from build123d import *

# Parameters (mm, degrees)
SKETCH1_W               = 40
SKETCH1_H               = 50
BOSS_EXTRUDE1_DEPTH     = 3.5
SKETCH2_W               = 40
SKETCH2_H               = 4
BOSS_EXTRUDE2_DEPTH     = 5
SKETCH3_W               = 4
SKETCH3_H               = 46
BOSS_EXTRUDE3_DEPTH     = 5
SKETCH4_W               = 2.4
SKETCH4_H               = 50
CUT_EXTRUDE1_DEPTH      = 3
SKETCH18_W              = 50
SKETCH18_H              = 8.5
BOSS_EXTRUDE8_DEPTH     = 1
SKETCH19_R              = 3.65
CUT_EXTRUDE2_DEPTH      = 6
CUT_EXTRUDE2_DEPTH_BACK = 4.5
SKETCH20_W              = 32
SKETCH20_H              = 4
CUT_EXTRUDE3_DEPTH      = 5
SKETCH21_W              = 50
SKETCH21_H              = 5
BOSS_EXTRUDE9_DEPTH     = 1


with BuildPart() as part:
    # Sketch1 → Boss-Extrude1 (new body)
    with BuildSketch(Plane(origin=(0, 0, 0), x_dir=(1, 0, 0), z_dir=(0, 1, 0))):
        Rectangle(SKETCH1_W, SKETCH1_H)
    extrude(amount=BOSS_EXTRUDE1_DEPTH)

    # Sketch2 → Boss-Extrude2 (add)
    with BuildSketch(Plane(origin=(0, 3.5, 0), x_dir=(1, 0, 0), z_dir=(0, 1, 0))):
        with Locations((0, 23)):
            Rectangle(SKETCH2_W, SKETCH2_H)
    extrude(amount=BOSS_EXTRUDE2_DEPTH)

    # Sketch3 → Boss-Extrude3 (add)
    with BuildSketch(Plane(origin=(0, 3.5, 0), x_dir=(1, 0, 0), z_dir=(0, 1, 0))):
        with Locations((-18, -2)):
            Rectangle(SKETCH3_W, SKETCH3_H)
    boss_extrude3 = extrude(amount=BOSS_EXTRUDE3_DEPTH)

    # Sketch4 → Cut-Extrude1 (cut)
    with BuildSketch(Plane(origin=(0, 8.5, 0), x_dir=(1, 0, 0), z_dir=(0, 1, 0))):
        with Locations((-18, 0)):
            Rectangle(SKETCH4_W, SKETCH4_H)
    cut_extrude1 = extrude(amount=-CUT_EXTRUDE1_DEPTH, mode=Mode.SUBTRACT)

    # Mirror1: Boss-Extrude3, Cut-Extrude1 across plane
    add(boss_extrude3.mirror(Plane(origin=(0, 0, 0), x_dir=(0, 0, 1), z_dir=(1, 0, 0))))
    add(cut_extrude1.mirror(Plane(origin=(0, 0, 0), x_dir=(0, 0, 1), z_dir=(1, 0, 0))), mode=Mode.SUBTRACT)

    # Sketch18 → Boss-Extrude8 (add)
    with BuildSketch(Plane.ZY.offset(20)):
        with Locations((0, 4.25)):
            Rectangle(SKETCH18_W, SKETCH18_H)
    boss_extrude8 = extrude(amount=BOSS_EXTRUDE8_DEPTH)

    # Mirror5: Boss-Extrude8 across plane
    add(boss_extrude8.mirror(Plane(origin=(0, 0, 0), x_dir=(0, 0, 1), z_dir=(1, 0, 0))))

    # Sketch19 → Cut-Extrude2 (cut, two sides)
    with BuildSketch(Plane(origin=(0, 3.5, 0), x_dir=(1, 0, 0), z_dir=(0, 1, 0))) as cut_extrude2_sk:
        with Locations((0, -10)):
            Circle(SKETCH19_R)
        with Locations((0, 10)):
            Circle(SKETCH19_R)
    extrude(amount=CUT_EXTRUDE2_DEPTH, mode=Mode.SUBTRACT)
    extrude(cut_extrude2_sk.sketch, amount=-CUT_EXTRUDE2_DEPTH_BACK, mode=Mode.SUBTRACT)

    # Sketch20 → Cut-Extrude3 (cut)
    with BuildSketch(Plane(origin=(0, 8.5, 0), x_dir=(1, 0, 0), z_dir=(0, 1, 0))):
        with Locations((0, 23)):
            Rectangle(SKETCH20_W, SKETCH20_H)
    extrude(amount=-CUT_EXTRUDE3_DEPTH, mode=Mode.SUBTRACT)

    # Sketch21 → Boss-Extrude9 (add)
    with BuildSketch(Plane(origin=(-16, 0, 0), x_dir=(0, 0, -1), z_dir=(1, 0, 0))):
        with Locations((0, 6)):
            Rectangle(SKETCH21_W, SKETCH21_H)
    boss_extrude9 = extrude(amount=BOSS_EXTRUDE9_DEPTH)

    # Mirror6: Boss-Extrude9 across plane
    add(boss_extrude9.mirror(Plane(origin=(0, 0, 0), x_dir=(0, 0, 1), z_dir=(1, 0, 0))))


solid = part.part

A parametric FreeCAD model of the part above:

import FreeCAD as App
import Part
import Sketcher

V = App.Vector
Q = App.Units.Quantity


def add_polygon(sketch, points):
    """Adds a closed chain of lines whose ends are joined by coincident constraints."""
    first, n = sketch.GeometryCount, len(points)
    for a, b in zip(points, points[1:] + points[:1]):
        sketch.addGeometry(Part.LineSegment(App.Vector(*a, 0), App.Vector(*b, 0)), False)
    for i in range(n):
        sketch.addConstraint(Sketcher.Constraint("Coincident", first + i, 2, first + (i + 1) % n, 1))

doc = App.newDocument("Part")
body = doc.addObject("PartDesign::Body", "Body")

sketch1 = doc.addObject("Sketcher::SketchObject", "Sketch")
body.addObject(sketch1)
sketch1.AttachmentSupport = (doc.XZ_Plane, [""])
sketch1.MapMode = "FlatFace"
add_polygon(sketch1, [(-20, -25), (-20, 25), (20, 25), (20, -25)])
sketch1.addConstraint([
    Sketcher.Constraint("Vertical", 0),
    Sketcher.Constraint("Horizontal", 1),
    Sketcher.Constraint("Vertical", 2),
    Sketcher.Constraint("Horizontal", 3),
    Sketcher.Constraint("Symmetric", 0, 2, 2, 2, -1, 1),
    Sketcher.Constraint("DistanceX", 1, 1, 1, 2, Q("40 mm")),
    Sketcher.Constraint("DistanceY", 0, 1, 0, 2, Q("50 mm")),
])
pad1 = doc.addObject("PartDesign::Pad", "Pad")
body.addObject(pad1)
pad1.Profile = sketch1
pad1.Length = 3.5
pad1.Reversed = True

sketch2 = doc.addObject("Sketcher::SketchObject", "Sketch001")
body.addObject(sketch2)
sketch2.AttachmentSupport = (doc.XZ_Plane, [""])
sketch2.MapMode = "FlatFace"
sketch2.AttachmentOffset = App.Placement(V(0, 0, -3.5), App.Rotation())
add_polygon(sketch2, [(-20, -25), (-20, -21), (20, -21), (20, -25)])
sketch2.addConstraint([
    Sketcher.Constraint("Vertical", 0),
    Sketcher.Constraint("Horizontal", 1),
    Sketcher.Constraint("Vertical", 2),
    Sketcher.Constraint("Horizontal", 3),
    Sketcher.Constraint("DistanceX", 1, 1, 1, 2, Q("40 mm")),
    Sketcher.Constraint("DistanceY", 0, 1, 0, 2, Q("4 mm")),
    Sketcher.Constraint("DistanceX", 0, 2, -1, 1, Q("20 mm")),
    Sketcher.Constraint("DistanceY", 0, 2, -1, 1, Q("21 mm")),
])
pad2 = doc.addObject("PartDesign::Pad", "Pad001")
body.addObject(pad2)
pad2.Profile = sketch2
pad2.Length = 5
pad2.Reversed = True

sketch3 = doc.addObject("Sketcher::SketchObject", "Sketch002")
body.addObject(sketch3)
sketch3.AttachmentSupport = (doc.XZ_Plane, [""])
sketch3.MapMode = "FlatFace"
sketch3.AttachmentOffset = App.Placement(V(0, 0, -3.5), App.Rotation())
add_polygon(sketch3, [(-20, -21), (-20, 25), (-16, 25), (-16, -21)])
sketch3.addConstraint([
    Sketcher.Constraint("Vertical", 0),
    Sketcher.Constraint("Horizontal", 1),
    Sketcher.Constraint("Vertical", 2),
    Sketcher.Constraint("Horizontal", 3),
    Sketcher.Constraint("DistanceX", 1, 1, 1, 2, Q("4 mm")),
    Sketcher.Constraint("DistanceY", 0, 1, 0, 2, Q("46 mm")),
    Sketcher.Constraint("DistanceX", 0, 2, -1, 1, Q("20 mm")),
    Sketcher.Constraint("DistanceY", -1, 1, 0, 2, Q("25 mm")),
])
pad3 = doc.addObject("PartDesign::Pad", "Pad002")
body.addObject(pad3)
pad3.Profile = sketch3
pad3.Length = 5
pad3.Reversed = True

sketch4 = doc.addObject("Sketcher::SketchObject", "Sketch003")
body.addObject(sketch4)
sketch4.AttachmentSupport = (doc.XZ_Plane, [""])
sketch4.MapMode = "FlatFace"
sketch4.AttachmentOffset = App.Placement(V(0, 0, -8.5), App.Rotation())
add_polygon(sketch4, [(-19.2, -25), (-19.2, 25), (-16.8, 25), (-16.8, -25)])
sketch4.addConstraint([
    Sketcher.Constraint("Vertical", 0),
    Sketcher.Constraint("Horizontal", 1),
    Sketcher.Constraint("Vertical", 2),
    Sketcher.Constraint("Horizontal", 3),
    Sketcher.Constraint("DistanceY", 0, 1, 0, 2, Q("50 mm")),
    Sketcher.Constraint("DistanceX", 1, 1, 1, 2, Q("2.4 mm")),
    Sketcher.Constraint("DistanceY", -1, 1, 0, 2, Q("25 mm")),
    Sketcher.Constraint("DistanceX", 0, 2, -1, 1, Q("19.2 mm")),
])
pocket1 = doc.addObject("PartDesign::Pocket", "Pocket")
body.addObject(pocket1)
pocket1.Profile = sketch4
pocket1.Length = 3
pocket1.Reversed = True
doc.recompute()

mirrored = doc.addObject("PartDesign::Mirrored", "Mirrored")
body.addObject(mirrored)
mirrored.Originals = [pad3, pocket1]
mirrored.MirrorPlane = (doc.YZ_Plane, [""])
body.Tip = mirrored

sketch5 = doc.addObject("Sketcher::SketchObject", "Sketch004")
body.addObject(sketch5)
sketch5.AttachmentSupport = (doc.YZ_Plane, [""])
sketch5.MapMode = "FlatFace"
sketch5.AttachmentOffset = App.Placement(V(0, 0, -20), App.Rotation())
add_polygon(sketch5, [(8.5, -25), (0, -25), (0, 25), (8.5, 25)])
sketch5.addConstraint([
    Sketcher.Constraint("Horizontal", 0),
    Sketcher.Constraint("Vertical", 1),
    Sketcher.Constraint("Horizontal", 2),
    Sketcher.Constraint("Vertical", 3),
    Sketcher.Constraint("Symmetric", 0, 2, 1, 2, -1, 1),
    Sketcher.Constraint("DistanceY", 1, 1, 1, 2, Q("50 mm")),
    Sketcher.Constraint("DistanceX", 0, 2, 0, 1, Q("8.5 mm")),
])
pad4 = doc.addObject("PartDesign::Pad", "Pad003")
body.addObject(pad4)
pad4.Profile = sketch5
pad4.Length = 1
pad4.Reversed = True
doc.recompute()

mirrored2 = doc.addObject("PartDesign::Mirrored", "Mirrored001")
body.addObject(mirrored2)
mirrored2.Originals = [pad4]
mirrored2.MirrorPlane = (doc.YZ_Plane, [""])
body.Tip = mirrored2

sketch6 = doc.addObject("Sketcher::SketchObject", "Sketch005")
body.addObject(sketch6)
sketch6.AttachmentSupport = (doc.XZ_Plane, [""])
sketch6.MapMode = "FlatFace"
sketch6.AttachmentOffset = App.Placement(V(0, 0, -3.5), App.Rotation())
sketch6.addGeometry([
    Part.Circle(V(0, 10, 0), V(0, 0, 1), 3.65),
    Part.Circle(V(0, -10, 0), V(0, 0, 1), 3.65),
], False)
sketch6.addConstraint([
    Sketcher.Constraint("Equal", 0, 1),
    Sketcher.Constraint("Symmetric", 0, 3, 1, 3, -1, 1),
    Sketcher.Constraint("PointOnObject", 0, 3, -2),
    Sketcher.Constraint("Diameter", 0, Q("7.3 mm")),
    Sketcher.Constraint("DistanceY", -1, 1, 0, 3, Q("10 mm")),
])
pocket2 = doc.addObject("PartDesign::Pocket", "Pocket001")
body.addObject(pocket2)
pocket2.Profile = sketch6
pocket2.Type = "ThroughAll"
pocket2.Midplane = True

sketch7 = doc.addObject("Sketcher::SketchObject", "Sketch006")
body.addObject(sketch7)
sketch7.AttachmentSupport = (doc.XZ_Plane, [""])
sketch7.MapMode = "FlatFace"
sketch7.AttachmentOffset = App.Placement(V(0, 0, -8.5), App.Rotation())
add_polygon(sketch7, [(-16, -25), (-16, -21), (16, -21), (16, -25)])
sketch7.addConstraint([
    Sketcher.Constraint("Vertical", 0),
    Sketcher.Constraint("Horizontal", 1),
    Sketcher.Constraint("Vertical", 2),
    Sketcher.Constraint("Horizontal", 3),
    Sketcher.Constraint("DistanceX", 1, 1, 1, 2, Q("32 mm")),
    Sketcher.Constraint("DistanceY", 0, 1, 0, 2, Q("4 mm")),
    Sketcher.Constraint("DistanceX", 0, 2, -1, 1, Q("16 mm")),
    Sketcher.Constraint("DistanceY", 0, 2, -1, 1, Q("21 mm")),
])
pocket3 = doc.addObject("PartDesign::Pocket", "Pocket002")
body.addObject(pocket3)
pocket3.Profile = sketch7
pocket3.Length = 5
pocket3.Reversed = True

sketch8 = doc.addObject("Sketcher::SketchObject", "Sketch007")
body.addObject(sketch8)
sketch8.AttachmentSupport = (doc.YZ_Plane, [""])
sketch8.MapMode = "FlatFace"
sketch8.AttachmentOffset = App.Placement(V(0, 0, -16), App.Rotation())
add_polygon(sketch8, [(8.5, 25), (3.5, 25), (3.5, -25), (8.5, -25)])
sketch8.addConstraint([
    Sketcher.Constraint("Horizontal", 0),
    Sketcher.Constraint("Vertical", 1),
    Sketcher.Constraint("Horizontal", 2),
    Sketcher.Constraint("Vertical", 3),
    Sketcher.Constraint("DistanceX", 0, 2, 0, 1, Q("5 mm")),
    Sketcher.Constraint("DistanceY", 1, 2, 1, 1, Q("50 mm")),
    Sketcher.Constraint("DistanceY", -1, 1, 0, 2, Q("25 mm")),
    Sketcher.Constraint("DistanceX", -1, 1, 0, 2, Q("3.5 mm")),
])
pad5 = doc.addObject("PartDesign::Pad", "Pad004")
body.addObject(pad5)
pad5.Profile = sketch8
pad5.Length = 1
doc.recompute()

mirrored3 = doc.addObject("PartDesign::Mirrored", "Mirrored002")
body.addObject(mirrored3)
mirrored3.Originals = [pad5]
mirrored3.MirrorPlane = (doc.YZ_Plane, [""])
body.Tip = mirrored3

doc.recompute()
